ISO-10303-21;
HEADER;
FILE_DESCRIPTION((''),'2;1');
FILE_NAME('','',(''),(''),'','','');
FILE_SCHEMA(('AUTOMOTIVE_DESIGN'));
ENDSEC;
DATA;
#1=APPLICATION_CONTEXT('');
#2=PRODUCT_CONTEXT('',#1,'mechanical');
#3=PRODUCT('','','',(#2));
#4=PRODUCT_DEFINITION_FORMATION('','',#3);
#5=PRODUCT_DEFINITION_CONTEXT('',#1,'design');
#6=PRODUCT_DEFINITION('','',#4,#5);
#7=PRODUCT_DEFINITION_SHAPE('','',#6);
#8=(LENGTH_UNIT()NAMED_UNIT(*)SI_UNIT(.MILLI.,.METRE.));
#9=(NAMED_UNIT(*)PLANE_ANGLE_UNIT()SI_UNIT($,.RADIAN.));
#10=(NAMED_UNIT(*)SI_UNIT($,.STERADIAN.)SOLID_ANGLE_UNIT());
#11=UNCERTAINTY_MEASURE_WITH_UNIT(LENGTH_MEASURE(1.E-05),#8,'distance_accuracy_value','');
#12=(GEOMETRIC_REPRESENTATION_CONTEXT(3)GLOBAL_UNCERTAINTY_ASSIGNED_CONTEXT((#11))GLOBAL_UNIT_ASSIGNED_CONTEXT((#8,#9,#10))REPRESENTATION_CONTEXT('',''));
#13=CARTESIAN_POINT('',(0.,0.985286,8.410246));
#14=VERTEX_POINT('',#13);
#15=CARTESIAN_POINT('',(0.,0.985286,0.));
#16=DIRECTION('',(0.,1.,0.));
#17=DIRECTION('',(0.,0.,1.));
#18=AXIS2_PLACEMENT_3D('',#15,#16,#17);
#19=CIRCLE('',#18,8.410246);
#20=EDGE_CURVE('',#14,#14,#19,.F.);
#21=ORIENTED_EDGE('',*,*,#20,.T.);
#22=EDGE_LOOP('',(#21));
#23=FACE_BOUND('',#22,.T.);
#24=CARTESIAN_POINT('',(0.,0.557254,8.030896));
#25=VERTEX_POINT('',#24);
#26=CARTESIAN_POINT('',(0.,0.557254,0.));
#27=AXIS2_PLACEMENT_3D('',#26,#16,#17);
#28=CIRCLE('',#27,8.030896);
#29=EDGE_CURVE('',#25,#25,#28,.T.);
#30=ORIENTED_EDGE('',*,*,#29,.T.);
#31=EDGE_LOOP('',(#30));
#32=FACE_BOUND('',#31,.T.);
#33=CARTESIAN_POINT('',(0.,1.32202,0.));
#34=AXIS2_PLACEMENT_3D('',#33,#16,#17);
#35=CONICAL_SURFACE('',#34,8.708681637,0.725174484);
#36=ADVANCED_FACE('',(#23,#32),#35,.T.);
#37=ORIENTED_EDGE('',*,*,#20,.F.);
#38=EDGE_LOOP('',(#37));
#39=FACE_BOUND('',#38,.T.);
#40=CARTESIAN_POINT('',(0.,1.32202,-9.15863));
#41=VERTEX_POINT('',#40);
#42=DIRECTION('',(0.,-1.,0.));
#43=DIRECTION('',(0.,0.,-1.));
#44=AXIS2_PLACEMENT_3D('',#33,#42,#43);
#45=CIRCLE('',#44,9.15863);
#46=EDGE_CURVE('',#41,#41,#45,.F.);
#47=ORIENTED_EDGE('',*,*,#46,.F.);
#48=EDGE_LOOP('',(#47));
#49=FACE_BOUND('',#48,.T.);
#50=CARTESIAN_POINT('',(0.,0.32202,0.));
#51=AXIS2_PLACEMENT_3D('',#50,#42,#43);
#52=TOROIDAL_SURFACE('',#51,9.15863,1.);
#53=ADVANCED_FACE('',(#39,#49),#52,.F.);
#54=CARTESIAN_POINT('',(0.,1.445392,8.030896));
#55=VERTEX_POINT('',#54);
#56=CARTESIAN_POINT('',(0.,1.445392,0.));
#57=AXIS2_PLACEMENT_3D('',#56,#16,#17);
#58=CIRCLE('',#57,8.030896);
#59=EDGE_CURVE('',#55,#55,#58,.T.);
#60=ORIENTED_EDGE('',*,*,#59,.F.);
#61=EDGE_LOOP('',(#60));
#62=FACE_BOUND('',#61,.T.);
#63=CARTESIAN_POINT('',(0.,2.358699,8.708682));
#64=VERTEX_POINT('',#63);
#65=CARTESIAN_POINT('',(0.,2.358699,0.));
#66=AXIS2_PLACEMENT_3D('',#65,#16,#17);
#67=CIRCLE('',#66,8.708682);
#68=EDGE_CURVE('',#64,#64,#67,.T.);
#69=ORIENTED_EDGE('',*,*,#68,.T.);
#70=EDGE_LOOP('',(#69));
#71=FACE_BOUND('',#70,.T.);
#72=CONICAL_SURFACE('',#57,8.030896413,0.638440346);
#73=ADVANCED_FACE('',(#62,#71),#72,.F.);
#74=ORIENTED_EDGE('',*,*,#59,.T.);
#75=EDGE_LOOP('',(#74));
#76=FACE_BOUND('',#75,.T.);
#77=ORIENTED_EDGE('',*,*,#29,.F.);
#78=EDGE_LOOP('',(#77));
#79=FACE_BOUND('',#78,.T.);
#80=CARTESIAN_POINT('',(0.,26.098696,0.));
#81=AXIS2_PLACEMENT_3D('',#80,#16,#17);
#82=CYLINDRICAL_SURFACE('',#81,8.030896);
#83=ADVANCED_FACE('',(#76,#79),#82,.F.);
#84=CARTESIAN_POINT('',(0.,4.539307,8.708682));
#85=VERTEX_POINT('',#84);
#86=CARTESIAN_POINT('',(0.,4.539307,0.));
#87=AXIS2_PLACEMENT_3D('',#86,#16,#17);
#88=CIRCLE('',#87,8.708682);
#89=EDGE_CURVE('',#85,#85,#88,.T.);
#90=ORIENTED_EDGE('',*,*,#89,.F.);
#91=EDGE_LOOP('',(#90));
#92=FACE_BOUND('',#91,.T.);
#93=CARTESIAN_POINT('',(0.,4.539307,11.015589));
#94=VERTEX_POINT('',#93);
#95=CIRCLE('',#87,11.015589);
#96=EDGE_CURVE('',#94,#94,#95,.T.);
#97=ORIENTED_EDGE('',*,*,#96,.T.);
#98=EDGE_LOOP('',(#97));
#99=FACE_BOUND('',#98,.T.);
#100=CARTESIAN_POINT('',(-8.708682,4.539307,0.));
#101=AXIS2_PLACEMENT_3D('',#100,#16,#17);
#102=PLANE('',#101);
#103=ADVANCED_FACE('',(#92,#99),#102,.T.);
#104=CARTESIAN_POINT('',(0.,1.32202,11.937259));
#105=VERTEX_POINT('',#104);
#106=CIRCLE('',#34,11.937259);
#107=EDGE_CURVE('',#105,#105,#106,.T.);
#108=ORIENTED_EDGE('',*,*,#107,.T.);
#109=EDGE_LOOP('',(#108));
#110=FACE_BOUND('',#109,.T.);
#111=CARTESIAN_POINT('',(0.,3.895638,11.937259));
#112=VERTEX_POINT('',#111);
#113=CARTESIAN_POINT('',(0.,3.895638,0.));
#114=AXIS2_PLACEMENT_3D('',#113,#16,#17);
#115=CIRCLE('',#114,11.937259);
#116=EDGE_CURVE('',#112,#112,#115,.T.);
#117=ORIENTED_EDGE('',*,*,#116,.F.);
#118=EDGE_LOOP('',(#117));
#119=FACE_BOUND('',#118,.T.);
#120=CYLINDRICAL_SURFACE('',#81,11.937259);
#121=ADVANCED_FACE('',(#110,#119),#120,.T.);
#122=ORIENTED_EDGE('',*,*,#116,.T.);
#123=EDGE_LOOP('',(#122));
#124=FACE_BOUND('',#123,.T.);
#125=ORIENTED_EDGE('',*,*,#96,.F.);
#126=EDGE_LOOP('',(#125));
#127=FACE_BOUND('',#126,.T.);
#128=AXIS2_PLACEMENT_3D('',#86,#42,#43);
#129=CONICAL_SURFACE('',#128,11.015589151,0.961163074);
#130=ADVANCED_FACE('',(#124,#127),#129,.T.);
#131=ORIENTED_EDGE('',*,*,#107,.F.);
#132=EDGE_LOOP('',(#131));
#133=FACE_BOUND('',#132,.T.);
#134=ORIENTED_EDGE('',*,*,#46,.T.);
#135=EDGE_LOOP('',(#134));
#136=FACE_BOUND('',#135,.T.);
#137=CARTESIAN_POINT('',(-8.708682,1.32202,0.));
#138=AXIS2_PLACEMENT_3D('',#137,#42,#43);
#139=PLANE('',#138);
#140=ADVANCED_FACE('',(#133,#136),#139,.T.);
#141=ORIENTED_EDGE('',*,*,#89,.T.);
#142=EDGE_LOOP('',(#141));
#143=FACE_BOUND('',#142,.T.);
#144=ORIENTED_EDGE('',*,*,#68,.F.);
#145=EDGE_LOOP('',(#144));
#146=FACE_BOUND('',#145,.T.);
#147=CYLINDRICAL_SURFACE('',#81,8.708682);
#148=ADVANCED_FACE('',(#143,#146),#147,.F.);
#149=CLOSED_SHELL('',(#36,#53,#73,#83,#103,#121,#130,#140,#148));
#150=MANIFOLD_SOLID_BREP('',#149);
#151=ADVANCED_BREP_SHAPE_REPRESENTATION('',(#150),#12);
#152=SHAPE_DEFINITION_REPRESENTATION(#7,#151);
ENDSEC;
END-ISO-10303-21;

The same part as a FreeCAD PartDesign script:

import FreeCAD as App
import Part
import Sketcher
from FreeCAD import Vector


def edges_at(feature, points):
    """Names of the edges that pass closest to the given points."""
    edges = feature.Shape.Edges
    near = lambda p: min(range(len(edges)), key=lambda i: edges[i].distToShape(Part.Vertex(*p))[0])
    return sorted({f"Edge{near(p) + 1}" for p in points})


def add_polygon(sketch, points):
    """Adds a closed chain of lines whose ends are joined by coincident constraints."""
    first, n = sketch.GeometryCount, len(points)
    for a, b in zip(points, points[1:] + points[:1]):
        sketch.addGeometry(Part.LineSegment(App.Vector(*a, 0), App.Vector(*b, 0)), False)
    for i in range(n):
        sketch.addConstraint(Sketcher.Constraint("Coincident", first + i, 2, first + (i + 1) % n, 1))

doc = App.newDocument("Part")
params = doc.addObject("Spreadsheet::Sheet", "Params")
for row, (alias, value) in enumerate([
    ("revolution_angle", "360 deg"),
    ("fillet_radius", "1 mm"),
], start=1):
    params.set(f"A{row}", alias)
    params.set(f"B{row}", "=" + value)
    params.setAlias(f"B{row}", alias)

body = doc.addObject("PartDesign::Body", "Body")

# Sketch on XY plane
sketch1 = body.newObject("Sketcher::SketchObject", "Sketch")
sketch1.AttachmentSupport = (doc.getObject("XY_Plane"), [""])
sketch1.MapMode = "FlatFace"
add_polygon(sketch1, [(-8, 0.6), (-8, 1.4), (-8.7, 2.4), (-8.7, 4.5), (-11, 4.5), (-11.9, 3.9), (-11.9, 1.3), (-8.7, 1.3)])  # lines 0-7
sketch1.addConstraint(Sketcher.Constraint("Vertical", 0))
sketch1.addConstraint(Sketcher.Constraint("Vertical", 2))
sketch1.addConstraint(Sketcher.Constraint("Horizontal", 3))
sketch1.addConstraint(Sketcher.Constraint("Vertical", 5))
sketch1.addConstraint(Sketcher.Constraint("Horizontal", 6))
sketch1.addConstraint(Sketcher.Constraint("Vertical", 2, 2, 6, 2))
sketch1.addConstraint(Sketcher.Constraint("DistanceY", 0, 1, 0, 2, 0.888138))
sketch1.addConstraint(Sketcher.Constraint("DistanceY", 2, 1, 2, 2, 2.180609))
sketch1.addConstraint(Sketcher.Constraint("DistanceY", -1, 1, 1, 2, 2.358699))
sketch1.addConstraint(Sketcher.Constraint("Distance", 1, 1.137331))
sketch1.addConstraint(Sketcher.Constraint("Distance", 7, 1.02189))
sketch1.addConstraint(Sketcher.Constraint("DistanceX", 3, 2, 3, 1, 2.306908))
sketch1.addConstraint(Sketcher.Constraint("DistanceX", 6, 1, 6, 2, 3.228578))
sketch1.addConstraint(Sketcher.Constraint("DistanceY", 5, 2, 5, 1, 2.573618))
sketch1.addConstraint(Sketcher.Constraint("DistanceX", 1, 2, -1, 1, 8.708682))
sketch1.addConstraint(Sketcher.Constraint("DistanceY", -1, 1, 5, 2, 1.32202))
revolution = body.newObject("PartDesign::Revolution", "Revolution")
revolution.Profile = sketch1
revolution.ReferenceAxis = (sketch1, ["V_Axis"])
revolution.setExpression("Angle", "Params.revolution_angle")
doc.recompute()

fillet = body.newObject("PartDesign::Fillet", "Fillet")
fillet.Base = (revolution, edges_at(revolution, [(0, 1.322, -8.709)]))
fillet.setExpression("Radius", "Params.fillet_radius")

doc.recompute()
